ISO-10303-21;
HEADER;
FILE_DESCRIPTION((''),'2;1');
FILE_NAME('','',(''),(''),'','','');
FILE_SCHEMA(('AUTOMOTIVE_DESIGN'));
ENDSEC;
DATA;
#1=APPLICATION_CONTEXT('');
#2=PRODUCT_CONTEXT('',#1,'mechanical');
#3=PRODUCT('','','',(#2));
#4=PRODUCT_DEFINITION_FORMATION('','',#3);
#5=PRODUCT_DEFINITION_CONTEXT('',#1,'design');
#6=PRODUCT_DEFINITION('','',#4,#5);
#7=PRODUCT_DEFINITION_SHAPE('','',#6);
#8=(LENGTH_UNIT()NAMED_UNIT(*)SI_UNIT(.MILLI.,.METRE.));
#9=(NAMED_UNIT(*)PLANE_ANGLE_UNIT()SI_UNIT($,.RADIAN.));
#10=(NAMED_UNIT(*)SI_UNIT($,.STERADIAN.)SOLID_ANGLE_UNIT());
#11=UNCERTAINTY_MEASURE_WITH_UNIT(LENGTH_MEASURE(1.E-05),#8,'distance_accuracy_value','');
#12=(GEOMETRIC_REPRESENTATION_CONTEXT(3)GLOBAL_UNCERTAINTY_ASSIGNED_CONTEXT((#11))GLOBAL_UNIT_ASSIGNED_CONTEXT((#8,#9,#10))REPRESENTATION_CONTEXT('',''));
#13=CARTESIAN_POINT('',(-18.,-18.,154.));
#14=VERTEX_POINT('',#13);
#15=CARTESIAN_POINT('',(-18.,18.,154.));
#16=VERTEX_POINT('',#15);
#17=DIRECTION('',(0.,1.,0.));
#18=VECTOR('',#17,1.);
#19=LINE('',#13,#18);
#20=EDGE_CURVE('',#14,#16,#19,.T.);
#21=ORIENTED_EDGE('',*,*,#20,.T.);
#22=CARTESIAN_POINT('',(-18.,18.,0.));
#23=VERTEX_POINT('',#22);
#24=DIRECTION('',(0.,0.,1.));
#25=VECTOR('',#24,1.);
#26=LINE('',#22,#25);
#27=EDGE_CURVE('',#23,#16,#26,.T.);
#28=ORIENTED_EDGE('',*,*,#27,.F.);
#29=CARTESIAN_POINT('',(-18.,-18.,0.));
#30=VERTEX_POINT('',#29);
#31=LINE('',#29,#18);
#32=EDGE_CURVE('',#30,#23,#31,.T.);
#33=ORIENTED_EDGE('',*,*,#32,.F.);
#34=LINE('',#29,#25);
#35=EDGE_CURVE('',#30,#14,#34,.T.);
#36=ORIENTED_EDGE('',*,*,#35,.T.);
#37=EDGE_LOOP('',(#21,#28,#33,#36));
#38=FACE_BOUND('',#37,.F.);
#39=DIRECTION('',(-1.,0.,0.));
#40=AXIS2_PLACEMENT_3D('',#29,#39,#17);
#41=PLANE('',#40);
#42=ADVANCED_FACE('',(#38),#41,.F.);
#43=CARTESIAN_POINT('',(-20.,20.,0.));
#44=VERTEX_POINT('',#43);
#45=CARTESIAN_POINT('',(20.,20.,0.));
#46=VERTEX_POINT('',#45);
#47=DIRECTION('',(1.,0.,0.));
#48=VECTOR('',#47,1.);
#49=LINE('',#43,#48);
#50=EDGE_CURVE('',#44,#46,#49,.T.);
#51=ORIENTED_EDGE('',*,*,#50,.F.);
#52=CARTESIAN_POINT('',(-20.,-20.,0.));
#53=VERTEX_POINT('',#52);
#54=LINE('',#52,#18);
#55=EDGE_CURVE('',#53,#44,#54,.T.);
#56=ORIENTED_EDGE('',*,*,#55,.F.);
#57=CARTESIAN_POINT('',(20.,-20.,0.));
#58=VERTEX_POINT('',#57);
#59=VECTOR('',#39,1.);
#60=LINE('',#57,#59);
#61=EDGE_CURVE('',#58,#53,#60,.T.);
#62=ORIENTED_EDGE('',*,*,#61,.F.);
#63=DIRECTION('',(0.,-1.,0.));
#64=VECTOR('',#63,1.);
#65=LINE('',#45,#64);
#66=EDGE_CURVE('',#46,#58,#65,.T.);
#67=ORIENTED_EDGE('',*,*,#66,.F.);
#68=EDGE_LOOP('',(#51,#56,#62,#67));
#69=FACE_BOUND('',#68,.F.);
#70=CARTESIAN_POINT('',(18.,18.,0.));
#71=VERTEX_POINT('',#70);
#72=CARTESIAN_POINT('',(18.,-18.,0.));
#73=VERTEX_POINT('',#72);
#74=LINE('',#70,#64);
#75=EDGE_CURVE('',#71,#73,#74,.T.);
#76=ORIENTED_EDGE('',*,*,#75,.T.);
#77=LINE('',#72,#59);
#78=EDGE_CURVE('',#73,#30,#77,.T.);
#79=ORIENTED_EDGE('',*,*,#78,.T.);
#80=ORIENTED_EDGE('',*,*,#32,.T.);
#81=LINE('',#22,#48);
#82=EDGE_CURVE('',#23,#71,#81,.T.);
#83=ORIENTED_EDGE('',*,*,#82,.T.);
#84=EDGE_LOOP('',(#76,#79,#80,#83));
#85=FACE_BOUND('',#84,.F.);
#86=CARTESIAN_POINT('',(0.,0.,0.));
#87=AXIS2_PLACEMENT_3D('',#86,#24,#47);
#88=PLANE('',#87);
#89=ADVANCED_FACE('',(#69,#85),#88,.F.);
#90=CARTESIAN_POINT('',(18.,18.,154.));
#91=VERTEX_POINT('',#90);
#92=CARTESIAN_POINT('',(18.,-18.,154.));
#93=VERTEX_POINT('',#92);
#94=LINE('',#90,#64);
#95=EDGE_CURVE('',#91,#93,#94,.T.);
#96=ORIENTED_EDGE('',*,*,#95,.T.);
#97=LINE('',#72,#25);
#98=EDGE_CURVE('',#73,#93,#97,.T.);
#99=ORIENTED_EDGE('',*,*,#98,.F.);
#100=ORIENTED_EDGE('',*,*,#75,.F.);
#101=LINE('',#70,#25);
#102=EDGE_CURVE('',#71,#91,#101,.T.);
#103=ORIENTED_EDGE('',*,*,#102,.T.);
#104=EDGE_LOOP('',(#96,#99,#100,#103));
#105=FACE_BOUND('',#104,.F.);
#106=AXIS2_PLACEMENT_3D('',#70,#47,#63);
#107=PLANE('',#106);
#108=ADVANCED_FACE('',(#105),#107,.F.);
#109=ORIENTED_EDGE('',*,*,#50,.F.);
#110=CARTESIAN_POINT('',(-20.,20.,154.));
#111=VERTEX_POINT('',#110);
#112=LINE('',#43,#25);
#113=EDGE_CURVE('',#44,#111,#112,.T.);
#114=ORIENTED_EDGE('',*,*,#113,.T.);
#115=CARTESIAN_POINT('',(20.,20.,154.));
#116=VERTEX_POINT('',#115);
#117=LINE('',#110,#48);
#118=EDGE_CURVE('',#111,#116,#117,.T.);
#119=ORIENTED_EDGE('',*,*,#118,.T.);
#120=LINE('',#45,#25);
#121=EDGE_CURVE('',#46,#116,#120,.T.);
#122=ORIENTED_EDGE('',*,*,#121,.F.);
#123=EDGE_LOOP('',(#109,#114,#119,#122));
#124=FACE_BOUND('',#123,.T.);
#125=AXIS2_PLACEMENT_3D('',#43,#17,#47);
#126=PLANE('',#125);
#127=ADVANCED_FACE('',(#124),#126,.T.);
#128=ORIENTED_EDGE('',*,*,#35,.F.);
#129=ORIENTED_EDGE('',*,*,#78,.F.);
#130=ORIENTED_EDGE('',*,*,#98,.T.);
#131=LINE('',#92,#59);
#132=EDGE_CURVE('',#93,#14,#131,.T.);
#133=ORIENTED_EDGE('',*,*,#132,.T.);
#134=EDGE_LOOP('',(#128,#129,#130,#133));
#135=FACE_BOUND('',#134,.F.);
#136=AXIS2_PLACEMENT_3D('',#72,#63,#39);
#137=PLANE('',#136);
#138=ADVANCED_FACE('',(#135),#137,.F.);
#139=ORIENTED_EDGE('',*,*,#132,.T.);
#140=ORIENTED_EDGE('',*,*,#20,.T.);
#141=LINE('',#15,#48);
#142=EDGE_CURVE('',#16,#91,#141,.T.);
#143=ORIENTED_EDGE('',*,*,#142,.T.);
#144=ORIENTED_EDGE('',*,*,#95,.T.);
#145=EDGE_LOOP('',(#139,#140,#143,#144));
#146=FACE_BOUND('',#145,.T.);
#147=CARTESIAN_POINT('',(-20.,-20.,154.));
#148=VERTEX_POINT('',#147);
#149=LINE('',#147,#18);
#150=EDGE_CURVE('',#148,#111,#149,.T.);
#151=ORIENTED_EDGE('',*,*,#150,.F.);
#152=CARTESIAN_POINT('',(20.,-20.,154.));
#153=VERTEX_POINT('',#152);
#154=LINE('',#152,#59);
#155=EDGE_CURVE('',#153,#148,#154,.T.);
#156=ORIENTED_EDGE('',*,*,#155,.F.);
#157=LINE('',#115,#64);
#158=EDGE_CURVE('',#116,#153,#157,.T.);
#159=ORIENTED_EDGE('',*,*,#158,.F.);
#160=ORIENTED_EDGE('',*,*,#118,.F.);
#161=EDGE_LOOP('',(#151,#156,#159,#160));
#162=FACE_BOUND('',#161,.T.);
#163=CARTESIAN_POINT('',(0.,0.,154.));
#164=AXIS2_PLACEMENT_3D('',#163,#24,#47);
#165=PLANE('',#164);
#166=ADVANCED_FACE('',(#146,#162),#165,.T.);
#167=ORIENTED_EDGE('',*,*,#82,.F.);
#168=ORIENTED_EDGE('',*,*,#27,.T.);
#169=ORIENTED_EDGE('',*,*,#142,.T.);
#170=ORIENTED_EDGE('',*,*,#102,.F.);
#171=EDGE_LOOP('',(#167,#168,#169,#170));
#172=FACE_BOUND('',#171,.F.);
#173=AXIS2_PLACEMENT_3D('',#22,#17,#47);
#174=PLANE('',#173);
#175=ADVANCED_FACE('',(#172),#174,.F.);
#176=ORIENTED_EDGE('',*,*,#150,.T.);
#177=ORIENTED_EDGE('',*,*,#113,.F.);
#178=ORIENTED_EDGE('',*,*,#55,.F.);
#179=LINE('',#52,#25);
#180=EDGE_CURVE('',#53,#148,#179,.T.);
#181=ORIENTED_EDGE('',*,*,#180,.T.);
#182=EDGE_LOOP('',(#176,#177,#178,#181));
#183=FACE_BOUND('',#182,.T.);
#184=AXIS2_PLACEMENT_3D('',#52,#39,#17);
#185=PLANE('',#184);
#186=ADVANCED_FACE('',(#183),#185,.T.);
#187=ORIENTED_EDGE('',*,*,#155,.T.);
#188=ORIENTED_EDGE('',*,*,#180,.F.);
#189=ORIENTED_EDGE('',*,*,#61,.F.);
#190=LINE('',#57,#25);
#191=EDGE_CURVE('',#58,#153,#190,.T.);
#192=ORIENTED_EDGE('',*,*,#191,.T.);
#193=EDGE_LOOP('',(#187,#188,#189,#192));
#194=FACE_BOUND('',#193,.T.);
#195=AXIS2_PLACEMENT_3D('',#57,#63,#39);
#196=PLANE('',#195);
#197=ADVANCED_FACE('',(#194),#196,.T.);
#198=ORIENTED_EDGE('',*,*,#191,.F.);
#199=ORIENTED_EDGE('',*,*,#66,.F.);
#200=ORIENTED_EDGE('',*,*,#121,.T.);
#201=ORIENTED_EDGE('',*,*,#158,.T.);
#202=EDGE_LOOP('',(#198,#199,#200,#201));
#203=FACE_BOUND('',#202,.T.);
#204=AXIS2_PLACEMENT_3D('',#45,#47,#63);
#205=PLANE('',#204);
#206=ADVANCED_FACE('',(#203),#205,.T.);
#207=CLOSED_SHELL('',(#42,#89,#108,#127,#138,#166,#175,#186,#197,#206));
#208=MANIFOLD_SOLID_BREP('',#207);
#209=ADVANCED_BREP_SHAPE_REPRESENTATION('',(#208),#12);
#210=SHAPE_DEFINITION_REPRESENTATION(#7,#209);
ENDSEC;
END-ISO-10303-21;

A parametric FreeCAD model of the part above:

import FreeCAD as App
import Part
import Sketcher

V = App.Vector
Q = App.Units.Quantity

doc = App.newDocument("Part")
params = doc.addObject("Spreadsheet::Sheet", "Params")
for row, (alias, value) in enumerate([
    ("sketch1_width", "40 mm"),
    ("pad1_length", "154 mm"),
], start=1):
    params.set(f"A{row}", alias)
    params.set(f"B{row}", "=" + value)
    params.setAlias(f"B{row}", alias)

body = doc.addObject("PartDesign::Body", "Body")

sketch1 = body.newObject("Sketcher::SketchObject", "Sketch")
sketch1.AttachmentSupport = (doc.getObject("XY_Plane"), [""])
sketch1.MapMode = "FlatFace"
sketch1.addGeometry(Part.LineSegment(V(20, 20, 0), V(-20, 20, 0)), False)
sketch1.addGeometry(Part.LineSegment(V(-20, 20, 0), V(-20, -20, 0)), False)
sketch1.addGeometry(Part.LineSegment(V(-20, -20, 0), V(20, -20, 0)), False)
sketch1.addGeometry(Part.LineSegment(V(20, -20, 0), V(20, 20, 0)), False)
sketch1.addGeometry(Part.LineSegment(V(-18, -18, 0), V(-18, 18, 0)), False)
sketch1.addGeometry(Part.LineSegment(V(-18, 18, 0), V(18, 18, 0)), False)
sketch1.addGeometry(Part.LineSegment(V(18, 18, 0), V(18, -18, 0)), False)
sketch1.addGeometry(Part.LineSegment(V(18, -18, 0), V(-18, -18, 0)), False)
sketch1.addConstraint(Sketcher.Constraint("Coincident", 0, 2, 1, 1))
sketch1.addConstraint(Sketcher.Constraint("Coincident", 1, 2, 2, 1))
sketch1.addConstraint(Sketcher.Constraint("Coincident", 2, 2, 3, 1))
sketch1.addConstraint(Sketcher.Constraint("Coincident", 3, 2, 0, 1))
sketch1.addConstraint(Sketcher.Constraint("Coincident", 4, 2, 5, 1))
sketch1.addConstraint(Sketcher.Constraint("Coincident", 5, 2, 6, 1))
sketch1.addConstraint(Sketcher.Constraint("Coincident", 6, 2, 7, 1))
sketch1.addConstraint(Sketcher.Constraint("Coincident", 7, 2, 4, 1))
sketch1.addConstraint(Sketcher.Constraint("Horizontal", 0))
sketch1.addConstraint(Sketcher.Constraint("Vertical", 1))
sketch1.addConstraint(Sketcher.Constraint("Horizontal", 2))
sketch1.addConstraint(Sketcher.Constraint("Vertical", 3))
sketch1.addConstraint(Sketcher.Constraint("Vertical", 4))
sketch1.addConstraint(Sketcher.Constraint("Horizontal", 5))
sketch1.addConstraint(Sketcher.Constraint("Vertical", 6))
sketch1.addConstraint(Sketcher.Constraint("Horizontal", 7))
sketch1.addConstraint(Sketcher.Constraint("Symmetric", 0, 2, 2, 2, -1, 1))
sketch1.addConstraint(Sketcher.Constraint("Symmetric", 4, 2, 6, 2, -1, 1))
sketch1.addConstraint(Sketcher.Constraint("Equal", 2, 1))
sketch1.addConstraint(Sketcher.Constraint("Equal", 7, 4))
sketch1.addConstraint(Sketcher.Constraint("DistanceX", 0, 2, 0, 1, Q("40 mm")))
sketch1.addConstraint(Sketcher.Constraint("DistanceX", 0, 2, 4, 2, Q("2 mm")))
sketch1.setExpression("Constraints[20]", "Params.sketch1_width")
pad1 = body.newObject("PartDesign::Pad", "Pad")
pad1.Profile = sketch1
pad1.setExpression("Length", "Params.pad1_length")

doc.recompute()
